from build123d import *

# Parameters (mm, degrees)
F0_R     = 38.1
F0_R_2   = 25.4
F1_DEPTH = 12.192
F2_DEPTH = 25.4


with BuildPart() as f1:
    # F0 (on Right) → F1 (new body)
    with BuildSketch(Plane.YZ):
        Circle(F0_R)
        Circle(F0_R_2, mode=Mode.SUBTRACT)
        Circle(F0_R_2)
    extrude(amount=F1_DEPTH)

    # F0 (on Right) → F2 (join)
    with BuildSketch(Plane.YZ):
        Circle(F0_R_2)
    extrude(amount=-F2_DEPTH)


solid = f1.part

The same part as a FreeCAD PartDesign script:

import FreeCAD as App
import Part
import Sketcher
from FreeCAD import Vector
Q = App.Units.Quantity

doc = App.newDocument("Part")
params = doc.addObject("Spreadsheet::Sheet", "Params")
for row, (alias, value) in enumerate([
    ("sketch1_diameter", "3 in"),
    ("pad1_length", "0.48 in"),
    ("sketch2_diameter", "2 in"),
    ("pad2_length", "1 in"),
], start=1):
    params.set(f"A{row}", alias)
    params.set(f"B{row}", "=" + value)
    params.setAlias(f"B{row}", alias)

body = doc.addObject("PartDesign::Body", "Body")

# Sketch on YZ plane
sketch1 = doc.addObject("Sketcher::SketchObject", "Sketch")
body.addObject(sketch1)
sketch1.AttachmentSupport = (doc.YZ_Plane, [""])
sketch1.MapMode = "FlatFace"
sketch1.addGeometry(Part.Circle(Vector(0, 0, 0), Vector(0, 0, 1), 38.1), False)
sketch1.addConstraint([
    Sketcher.Constraint("Coincident", 0, 3, -1, 1),
    Sketcher.Constraint("Diameter", 0, Q("3 in")),
])
sketch1.setExpression("Constraints[1]", "Params.sketch1_diameter")
pad1 = doc.addObject("PartDesign::Pad", "Pad")
body.addObject(pad1)
pad1.Profile = sketch1
pad1.setExpression("Length", "Params.pad1_length")

# Sketch on YZ plane
sketch2 = doc.addObject("Sketcher::SketchObject", "Sketch001")
body.addObject(sketch2)
sketch2.AttachmentSupport = (doc.YZ_Plane, [""])
sketch2.MapMode = "FlatFace"
sketch2.addGeometry(Part.Circle(Vector(0, 0, 0), Vector(0, 0, 1), 25.4), False)
sketch2.addConstraint([
    Sketcher.Constraint("Coincident", 0, 3, -1, 1),
    Sketcher.Constraint("Diameter", 0, Q("2 in")),
])
sketch2.setExpression("Constraints[1]", "Params.sketch2_diameter")
pad2 = doc.addObject("PartDesign::Pad", "Pad001")
body.addObject(pad2)
pad2.Profile = sketch2
pad2.setExpression("Length", "Params.pad2_length")
pad2.Reversed = True

doc.recompute()
